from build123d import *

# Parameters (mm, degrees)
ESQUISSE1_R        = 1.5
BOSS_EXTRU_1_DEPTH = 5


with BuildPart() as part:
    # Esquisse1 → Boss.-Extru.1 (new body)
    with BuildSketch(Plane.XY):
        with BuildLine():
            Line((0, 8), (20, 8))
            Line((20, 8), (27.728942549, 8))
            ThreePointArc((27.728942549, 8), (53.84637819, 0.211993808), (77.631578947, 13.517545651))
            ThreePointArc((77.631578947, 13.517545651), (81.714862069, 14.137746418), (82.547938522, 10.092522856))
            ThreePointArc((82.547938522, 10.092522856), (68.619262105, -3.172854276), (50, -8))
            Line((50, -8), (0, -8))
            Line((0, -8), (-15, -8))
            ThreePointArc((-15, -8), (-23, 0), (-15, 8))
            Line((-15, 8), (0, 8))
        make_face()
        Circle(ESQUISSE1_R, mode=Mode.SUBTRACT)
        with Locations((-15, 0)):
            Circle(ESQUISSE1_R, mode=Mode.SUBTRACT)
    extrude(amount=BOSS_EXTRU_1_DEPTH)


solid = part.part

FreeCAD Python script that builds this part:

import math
import FreeCAD as App
import Part
import Sketcher
from FreeCAD import Vector
Q = App.Units.Quantity

doc = App.newDocument("Part")
body = doc.addObject("PartDesign::Body", "Body")

# Sketch on XY plane
sketch1 = doc.addObject("Sketcher::SketchObject", "Sketch")
body.addObject(sketch1)
sketch1.AttachmentSupport = (doc.XY_Plane, [""])
sketch1.MapMode = "FlatFace"
sketch1.addGeometry([
    Part.ArcOfCircle(Part.Circle(Vector(50, 35, 0), Vector(0, 0, 1), 35), math.radians(-130), math.radians(-38)),  # 0
    Part.LineSegment(Vector(27.7, 8, 0), Vector(-15, 8, 0)),  # 1
    Part.ArcOfCircle(Part.Circle(Vector(-15, 0, 0), Vector(0, 0, 1), 8), math.radians(90), math.radians(270)),  # 2
    Part.LineSegment(Vector(-15, -8, 0), Vector(50, -8, 0)),  # 3
    Part.ArcOfCircle(Part.Circle(Vector(50, 30.3, 0), Vector(0, 0, 1), 38.3), math.radians(-90), math.radians(-32)),  # 4
    Part.ArcOfCircle(Part.Circle(Vector(80, 11.7, 0), Vector(0, 0, 1), 3), math.radians(-32), math.radians(142)),  # 5
    Part.Circle(Vector(0, 0, 0), Vector(0, 0, 1), 1.5),  # 6
    Part.Circle(Vector(-15, 0, 0), Vector(0, 0, 1), 1.5),  # 7
], False)
sketch1.addConstraint([
    Sketcher.Constraint("Coincident", 0, 1, 1, 1),
    Sketcher.Constraint("Tangent", 1, 2, 2, 1),
    Sketcher.Constraint("Tangent", 2, 2, 3, 1),
    Sketcher.Constraint("Tangent", 3, 2, 4, 1),
    Sketcher.Constraint("Tangent", 4, 2, 5, 1),
    Sketcher.Constraint("Tangent", 5, 2, 0, 2),
    Sketcher.Constraint("Horizontal", 1),
    Sketcher.Constraint("Horizontal", 3),
    Sketcher.Constraint("Coincident", 6, 3, -1, 1),
    Sketcher.Constraint("Coincident", 7, 3, 2, 3),
    Sketcher.Constraint("Equal", 6, 7),
    Sketcher.Constraint("PointOnObject", 2, 3, -1),
    Sketcher.Constraint("Vertical", 0, 3, 4, 3),
    Sketcher.Constraint("Diameter", 6, Q("3 mm")),
    Sketcher.Constraint("Radius", 0, Q("35 mm")),
    Sketcher.Constraint("Radius", 2, Q("8 mm")),
    Sketcher.Constraint("Radius", 5, Q("3 mm")),
    Sketcher.Constraint("DistanceX", 3, 1, 3, 2, Q("65 mm")),
    Sketcher.Constraint("DistanceX", -1, 1, 0, 3, Q("50 mm")),
    Sketcher.Constraint("DistanceY", -1, 1, 0, 3, Q("35 mm")),
    Sketcher.Constraint("DistanceX", -1, 1, 5, 3, Q("80 mm")),
])
pad1 = doc.addObject("PartDesign::Pad", "Pad")
body.addObject(pad1)
pad1.Profile = sketch1
pad1.Length = 5

doc.recompute()
